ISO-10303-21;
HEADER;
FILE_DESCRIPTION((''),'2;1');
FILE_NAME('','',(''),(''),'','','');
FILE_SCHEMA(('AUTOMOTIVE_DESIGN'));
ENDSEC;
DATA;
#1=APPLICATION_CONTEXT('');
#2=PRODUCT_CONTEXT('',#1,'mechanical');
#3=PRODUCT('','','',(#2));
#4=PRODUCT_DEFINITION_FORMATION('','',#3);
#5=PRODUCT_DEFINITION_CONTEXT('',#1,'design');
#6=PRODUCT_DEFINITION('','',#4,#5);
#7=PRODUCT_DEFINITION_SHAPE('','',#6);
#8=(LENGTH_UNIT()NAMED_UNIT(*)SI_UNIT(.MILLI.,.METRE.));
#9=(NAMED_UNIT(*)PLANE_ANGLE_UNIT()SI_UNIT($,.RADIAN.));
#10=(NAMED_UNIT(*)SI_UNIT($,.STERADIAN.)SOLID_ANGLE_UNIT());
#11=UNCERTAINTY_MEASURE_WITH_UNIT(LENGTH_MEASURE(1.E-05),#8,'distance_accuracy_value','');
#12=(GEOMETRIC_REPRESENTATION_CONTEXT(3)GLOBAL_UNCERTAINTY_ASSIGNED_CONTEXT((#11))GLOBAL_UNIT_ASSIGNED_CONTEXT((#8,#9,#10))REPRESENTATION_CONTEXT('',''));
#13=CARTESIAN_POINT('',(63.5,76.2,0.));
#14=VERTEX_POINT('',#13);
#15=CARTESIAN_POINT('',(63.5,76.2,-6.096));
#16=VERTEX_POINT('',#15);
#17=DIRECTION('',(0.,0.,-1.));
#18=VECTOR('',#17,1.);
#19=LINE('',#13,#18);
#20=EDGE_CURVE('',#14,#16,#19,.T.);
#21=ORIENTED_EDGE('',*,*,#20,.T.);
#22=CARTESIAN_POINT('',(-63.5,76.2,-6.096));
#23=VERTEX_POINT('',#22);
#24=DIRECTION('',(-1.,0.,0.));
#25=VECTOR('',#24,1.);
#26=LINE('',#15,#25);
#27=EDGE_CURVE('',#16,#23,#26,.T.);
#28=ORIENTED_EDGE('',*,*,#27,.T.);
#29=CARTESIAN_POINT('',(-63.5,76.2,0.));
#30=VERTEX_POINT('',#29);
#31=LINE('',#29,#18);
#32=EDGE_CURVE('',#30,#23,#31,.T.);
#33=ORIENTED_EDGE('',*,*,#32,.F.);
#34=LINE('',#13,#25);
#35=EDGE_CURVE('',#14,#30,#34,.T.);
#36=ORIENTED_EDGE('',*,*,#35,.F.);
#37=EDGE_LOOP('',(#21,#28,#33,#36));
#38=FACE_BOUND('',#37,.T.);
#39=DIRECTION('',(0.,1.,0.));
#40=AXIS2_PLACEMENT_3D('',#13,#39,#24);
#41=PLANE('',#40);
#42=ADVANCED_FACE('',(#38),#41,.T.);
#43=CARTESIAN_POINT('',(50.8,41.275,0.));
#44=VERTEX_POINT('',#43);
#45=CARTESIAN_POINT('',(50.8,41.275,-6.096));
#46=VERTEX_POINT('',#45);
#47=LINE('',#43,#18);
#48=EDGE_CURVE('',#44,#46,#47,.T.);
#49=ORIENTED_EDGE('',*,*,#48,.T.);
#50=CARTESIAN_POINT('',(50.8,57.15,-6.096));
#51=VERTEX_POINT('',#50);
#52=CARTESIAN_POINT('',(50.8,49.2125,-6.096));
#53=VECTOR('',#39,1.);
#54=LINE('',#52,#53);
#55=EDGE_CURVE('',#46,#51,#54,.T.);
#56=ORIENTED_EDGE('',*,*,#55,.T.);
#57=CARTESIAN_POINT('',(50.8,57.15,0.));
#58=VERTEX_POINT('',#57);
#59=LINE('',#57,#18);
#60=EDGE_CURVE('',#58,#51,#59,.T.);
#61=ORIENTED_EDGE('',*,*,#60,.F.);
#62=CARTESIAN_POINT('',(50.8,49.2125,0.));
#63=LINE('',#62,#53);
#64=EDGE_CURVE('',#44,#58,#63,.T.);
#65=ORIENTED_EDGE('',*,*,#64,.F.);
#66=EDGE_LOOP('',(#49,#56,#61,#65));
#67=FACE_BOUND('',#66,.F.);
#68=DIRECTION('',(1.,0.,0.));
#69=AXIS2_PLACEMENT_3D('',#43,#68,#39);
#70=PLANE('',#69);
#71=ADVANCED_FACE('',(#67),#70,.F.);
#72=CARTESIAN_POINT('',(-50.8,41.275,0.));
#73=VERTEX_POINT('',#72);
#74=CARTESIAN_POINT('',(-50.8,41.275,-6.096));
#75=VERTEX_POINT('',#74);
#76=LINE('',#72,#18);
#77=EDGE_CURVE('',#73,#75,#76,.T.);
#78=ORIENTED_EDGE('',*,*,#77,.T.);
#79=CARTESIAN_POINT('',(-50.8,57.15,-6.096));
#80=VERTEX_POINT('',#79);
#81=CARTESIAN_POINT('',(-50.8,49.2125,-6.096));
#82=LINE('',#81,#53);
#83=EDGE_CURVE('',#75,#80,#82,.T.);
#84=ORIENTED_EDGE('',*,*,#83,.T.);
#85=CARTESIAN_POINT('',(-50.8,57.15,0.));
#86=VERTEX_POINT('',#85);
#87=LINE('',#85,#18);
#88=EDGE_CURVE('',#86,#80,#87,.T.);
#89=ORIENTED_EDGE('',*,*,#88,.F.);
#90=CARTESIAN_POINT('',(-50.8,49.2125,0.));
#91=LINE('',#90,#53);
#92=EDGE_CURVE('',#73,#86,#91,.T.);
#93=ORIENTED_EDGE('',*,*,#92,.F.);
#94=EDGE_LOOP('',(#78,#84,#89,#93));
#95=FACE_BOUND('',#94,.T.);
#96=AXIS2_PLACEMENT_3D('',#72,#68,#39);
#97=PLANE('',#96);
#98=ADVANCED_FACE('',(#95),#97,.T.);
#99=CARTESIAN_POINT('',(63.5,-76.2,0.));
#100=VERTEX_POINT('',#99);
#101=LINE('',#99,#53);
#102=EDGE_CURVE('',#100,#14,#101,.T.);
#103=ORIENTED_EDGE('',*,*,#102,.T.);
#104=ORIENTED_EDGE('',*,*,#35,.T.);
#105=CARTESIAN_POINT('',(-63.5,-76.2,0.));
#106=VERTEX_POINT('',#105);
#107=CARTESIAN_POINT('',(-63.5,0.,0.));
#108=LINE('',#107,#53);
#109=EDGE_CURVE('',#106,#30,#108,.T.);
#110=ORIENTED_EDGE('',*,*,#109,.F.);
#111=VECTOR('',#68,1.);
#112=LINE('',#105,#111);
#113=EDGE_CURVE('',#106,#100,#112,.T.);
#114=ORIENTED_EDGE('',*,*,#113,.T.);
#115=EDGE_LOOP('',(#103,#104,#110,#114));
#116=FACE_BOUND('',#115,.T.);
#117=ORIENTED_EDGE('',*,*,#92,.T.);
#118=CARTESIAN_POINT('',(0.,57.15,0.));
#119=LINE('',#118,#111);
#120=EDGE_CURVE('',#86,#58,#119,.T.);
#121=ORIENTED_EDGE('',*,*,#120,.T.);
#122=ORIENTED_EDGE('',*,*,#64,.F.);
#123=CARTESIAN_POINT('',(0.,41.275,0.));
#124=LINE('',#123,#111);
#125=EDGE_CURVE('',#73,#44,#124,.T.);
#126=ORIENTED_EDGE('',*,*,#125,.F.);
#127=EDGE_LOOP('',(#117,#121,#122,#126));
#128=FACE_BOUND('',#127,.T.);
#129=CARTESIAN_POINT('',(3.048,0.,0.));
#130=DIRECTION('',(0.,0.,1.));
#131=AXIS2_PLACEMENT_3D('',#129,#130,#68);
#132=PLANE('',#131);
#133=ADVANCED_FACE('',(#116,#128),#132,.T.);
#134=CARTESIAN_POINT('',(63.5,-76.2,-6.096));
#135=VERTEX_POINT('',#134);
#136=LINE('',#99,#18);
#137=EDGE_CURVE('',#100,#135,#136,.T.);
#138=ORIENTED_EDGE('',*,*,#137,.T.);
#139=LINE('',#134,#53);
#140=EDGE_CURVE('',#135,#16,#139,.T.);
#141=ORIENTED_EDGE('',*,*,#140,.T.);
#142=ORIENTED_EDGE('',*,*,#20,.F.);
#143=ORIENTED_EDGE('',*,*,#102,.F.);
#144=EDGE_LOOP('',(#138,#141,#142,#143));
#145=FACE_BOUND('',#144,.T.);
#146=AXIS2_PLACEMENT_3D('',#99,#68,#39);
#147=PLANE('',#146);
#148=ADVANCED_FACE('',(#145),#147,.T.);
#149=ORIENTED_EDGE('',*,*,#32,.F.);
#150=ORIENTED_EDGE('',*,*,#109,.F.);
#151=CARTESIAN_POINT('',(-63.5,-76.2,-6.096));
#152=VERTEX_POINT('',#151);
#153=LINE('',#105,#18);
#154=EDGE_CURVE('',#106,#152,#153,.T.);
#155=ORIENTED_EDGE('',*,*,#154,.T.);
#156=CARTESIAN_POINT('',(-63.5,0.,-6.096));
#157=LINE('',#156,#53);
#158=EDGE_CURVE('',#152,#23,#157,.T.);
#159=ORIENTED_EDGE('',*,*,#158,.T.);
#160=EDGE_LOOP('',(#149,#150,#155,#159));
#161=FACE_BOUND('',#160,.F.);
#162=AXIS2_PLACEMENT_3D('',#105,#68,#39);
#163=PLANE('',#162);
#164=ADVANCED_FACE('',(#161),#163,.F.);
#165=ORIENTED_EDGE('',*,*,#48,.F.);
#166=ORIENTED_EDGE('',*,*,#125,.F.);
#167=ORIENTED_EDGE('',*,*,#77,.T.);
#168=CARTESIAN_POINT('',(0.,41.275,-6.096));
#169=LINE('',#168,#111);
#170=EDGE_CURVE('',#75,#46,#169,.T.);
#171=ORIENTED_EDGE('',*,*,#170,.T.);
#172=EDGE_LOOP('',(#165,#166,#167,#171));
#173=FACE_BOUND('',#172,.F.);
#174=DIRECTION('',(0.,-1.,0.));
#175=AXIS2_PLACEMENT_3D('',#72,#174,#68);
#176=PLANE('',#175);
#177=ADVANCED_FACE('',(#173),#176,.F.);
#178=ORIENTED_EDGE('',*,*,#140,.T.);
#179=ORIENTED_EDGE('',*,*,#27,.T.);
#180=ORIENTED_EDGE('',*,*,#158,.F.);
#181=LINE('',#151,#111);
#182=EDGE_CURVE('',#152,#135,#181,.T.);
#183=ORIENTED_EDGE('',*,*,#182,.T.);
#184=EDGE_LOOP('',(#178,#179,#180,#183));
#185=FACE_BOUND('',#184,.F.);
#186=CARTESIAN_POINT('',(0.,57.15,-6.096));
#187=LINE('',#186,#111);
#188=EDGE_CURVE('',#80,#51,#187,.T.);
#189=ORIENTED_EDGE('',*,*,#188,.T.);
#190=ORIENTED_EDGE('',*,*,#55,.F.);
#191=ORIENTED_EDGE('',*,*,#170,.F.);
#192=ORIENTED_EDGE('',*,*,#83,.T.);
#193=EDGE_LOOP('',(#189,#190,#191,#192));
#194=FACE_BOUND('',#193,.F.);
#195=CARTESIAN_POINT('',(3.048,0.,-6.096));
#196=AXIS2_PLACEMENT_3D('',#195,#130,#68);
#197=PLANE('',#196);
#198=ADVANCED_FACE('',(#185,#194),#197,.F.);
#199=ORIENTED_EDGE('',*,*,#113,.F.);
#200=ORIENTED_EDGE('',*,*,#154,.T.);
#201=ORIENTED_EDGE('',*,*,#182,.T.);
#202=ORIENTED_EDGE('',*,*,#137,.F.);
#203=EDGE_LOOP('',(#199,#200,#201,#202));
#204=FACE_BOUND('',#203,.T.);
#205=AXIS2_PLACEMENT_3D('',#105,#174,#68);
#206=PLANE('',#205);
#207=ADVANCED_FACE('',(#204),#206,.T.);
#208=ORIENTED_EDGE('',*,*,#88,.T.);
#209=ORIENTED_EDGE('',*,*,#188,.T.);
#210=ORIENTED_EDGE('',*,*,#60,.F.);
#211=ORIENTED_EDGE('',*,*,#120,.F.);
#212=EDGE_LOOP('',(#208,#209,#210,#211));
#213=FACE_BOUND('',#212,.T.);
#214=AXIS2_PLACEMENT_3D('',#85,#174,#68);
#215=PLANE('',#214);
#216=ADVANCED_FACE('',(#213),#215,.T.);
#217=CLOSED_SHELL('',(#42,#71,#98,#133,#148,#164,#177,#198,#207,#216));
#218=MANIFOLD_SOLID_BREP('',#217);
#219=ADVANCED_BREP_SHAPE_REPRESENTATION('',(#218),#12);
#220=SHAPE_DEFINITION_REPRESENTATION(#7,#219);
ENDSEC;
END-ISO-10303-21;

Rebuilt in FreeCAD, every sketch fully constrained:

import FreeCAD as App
import Part
import Sketcher
from FreeCAD import Vector
Q = App.Units.Quantity

doc = App.newDocument("Part")
body = doc.addObject("PartDesign::Body", "Body")

# Sketch on XY plane
sketch1 = doc.addObject("Sketcher::SketchObject", "Sketch")
body.addObject(sketch1)
sketch1.AttachmentSupport = (doc.XY_Plane, [""])
sketch1.MapMode = "FlatFace"
sketch1.addGeometry(Part.LineSegment(Vector(64, 76, 0), Vector(-64, 76, 0)), False)
sketch1.addGeometry(Part.LineSegment(Vector(-64, 76, 0), Vector(-64, -76, 0)), False)
sketch1.addGeometry(Part.LineSegment(Vector(-64, -76, 0), Vector(64, -76, 0)), False)
sketch1.addGeometry(Part.LineSegment(Vector(64, -76, 0), Vector(64, 76, 0)), False)
sketch1.addGeometry(Part.LineSegment(Vector(51, 41, 0), Vector(-51, 41, 0)), False)
sketch1.addGeometry(Part.LineSegment(Vector(-51, 41, 0), Vector(-51, 57, 0)), False)
sketch1.addGeometry(Part.LineSegment(Vector(-51, 57, 0), Vector(51, 57, 0)), False)
sketch1.addGeometry(Part.LineSegment(Vector(51, 57, 0), Vector(51, 41, 0)), False)
sketch1.addConstraint(Sketcher.Constraint("Coincident", 0, 2, 1, 1))
sketch1.addConstraint(Sketcher.Constraint("Coincident", 1, 2, 2, 1))
sketch1.addConstraint(Sketcher.Constraint("Coincident", 2, 2, 3, 1))
sketch1.addConstraint(Sketcher.Constraint("Coincident", 3, 2, 0, 1))
sketch1.addConstraint(Sketcher.Constraint("Coincident", 4, 2, 5, 1))
sketch1.addConstraint(Sketcher.Constraint("Coincident", 5, 2, 6, 1))
sketch1.addConstraint(Sketcher.Constraint("Coincident", 6, 2, 7, 1))
sketch1.addConstraint(Sketcher.Constraint("Coincident", 7, 2, 4, 1))
sketch1.addConstraint(Sketcher.Constraint("Horizontal", 0))
sketch1.addConstraint(Sketcher.Constraint("Vertical", 1))
sketch1.addConstraint(Sketcher.Constraint("Horizontal", 2))
sketch1.addConstraint(Sketcher.Constraint("Vertical", 3))
sketch1.addConstraint(Sketcher.Constraint("Horizontal", 4))
sketch1.addConstraint(Sketcher.Constraint("Vertical", 5))
sketch1.addConstraint(Sketcher.Constraint("Horizontal", 6))
sketch1.addConstraint(Sketcher.Constraint("Vertical", 7))
sketch1.addConstraint(Sketcher.Constraint("Symmetric", 0, 2, 2, 2, -1, 1))
sketch1.addConstraint(Sketcher.Constraint("DistanceX", 0, 2, 0, 1, Q("5 in")))
sketch1.addConstraint(Sketcher.Constraint("DistanceX", 4, 2, 4, 1, Q("4 in")))
sketch1.addConstraint(Sketcher.Constraint("DistanceY", 1, 2, 1, 1, Q("6 in")))
sketch1.addConstraint(Sketcher.Constraint("DistanceX", 4, 2, -1, 1, Q("2 in")))
sketch1.addConstraint(Sketcher.Constraint("DistanceY", 5, 1, 5, 2, Q("0.625 in")))
sketch1.addConstraint(Sketcher.Constraint("DistanceY", -1, 1, 5, 2, Q("2.25 in")))
pad1 = doc.addObject("PartDesign::Pad", "Pad")
body.addObject(pad1)
pad1.Profile = sketch1
pad1.Length = Q("0.24 in")
pad1.Reversed = True

doc.recompute()
